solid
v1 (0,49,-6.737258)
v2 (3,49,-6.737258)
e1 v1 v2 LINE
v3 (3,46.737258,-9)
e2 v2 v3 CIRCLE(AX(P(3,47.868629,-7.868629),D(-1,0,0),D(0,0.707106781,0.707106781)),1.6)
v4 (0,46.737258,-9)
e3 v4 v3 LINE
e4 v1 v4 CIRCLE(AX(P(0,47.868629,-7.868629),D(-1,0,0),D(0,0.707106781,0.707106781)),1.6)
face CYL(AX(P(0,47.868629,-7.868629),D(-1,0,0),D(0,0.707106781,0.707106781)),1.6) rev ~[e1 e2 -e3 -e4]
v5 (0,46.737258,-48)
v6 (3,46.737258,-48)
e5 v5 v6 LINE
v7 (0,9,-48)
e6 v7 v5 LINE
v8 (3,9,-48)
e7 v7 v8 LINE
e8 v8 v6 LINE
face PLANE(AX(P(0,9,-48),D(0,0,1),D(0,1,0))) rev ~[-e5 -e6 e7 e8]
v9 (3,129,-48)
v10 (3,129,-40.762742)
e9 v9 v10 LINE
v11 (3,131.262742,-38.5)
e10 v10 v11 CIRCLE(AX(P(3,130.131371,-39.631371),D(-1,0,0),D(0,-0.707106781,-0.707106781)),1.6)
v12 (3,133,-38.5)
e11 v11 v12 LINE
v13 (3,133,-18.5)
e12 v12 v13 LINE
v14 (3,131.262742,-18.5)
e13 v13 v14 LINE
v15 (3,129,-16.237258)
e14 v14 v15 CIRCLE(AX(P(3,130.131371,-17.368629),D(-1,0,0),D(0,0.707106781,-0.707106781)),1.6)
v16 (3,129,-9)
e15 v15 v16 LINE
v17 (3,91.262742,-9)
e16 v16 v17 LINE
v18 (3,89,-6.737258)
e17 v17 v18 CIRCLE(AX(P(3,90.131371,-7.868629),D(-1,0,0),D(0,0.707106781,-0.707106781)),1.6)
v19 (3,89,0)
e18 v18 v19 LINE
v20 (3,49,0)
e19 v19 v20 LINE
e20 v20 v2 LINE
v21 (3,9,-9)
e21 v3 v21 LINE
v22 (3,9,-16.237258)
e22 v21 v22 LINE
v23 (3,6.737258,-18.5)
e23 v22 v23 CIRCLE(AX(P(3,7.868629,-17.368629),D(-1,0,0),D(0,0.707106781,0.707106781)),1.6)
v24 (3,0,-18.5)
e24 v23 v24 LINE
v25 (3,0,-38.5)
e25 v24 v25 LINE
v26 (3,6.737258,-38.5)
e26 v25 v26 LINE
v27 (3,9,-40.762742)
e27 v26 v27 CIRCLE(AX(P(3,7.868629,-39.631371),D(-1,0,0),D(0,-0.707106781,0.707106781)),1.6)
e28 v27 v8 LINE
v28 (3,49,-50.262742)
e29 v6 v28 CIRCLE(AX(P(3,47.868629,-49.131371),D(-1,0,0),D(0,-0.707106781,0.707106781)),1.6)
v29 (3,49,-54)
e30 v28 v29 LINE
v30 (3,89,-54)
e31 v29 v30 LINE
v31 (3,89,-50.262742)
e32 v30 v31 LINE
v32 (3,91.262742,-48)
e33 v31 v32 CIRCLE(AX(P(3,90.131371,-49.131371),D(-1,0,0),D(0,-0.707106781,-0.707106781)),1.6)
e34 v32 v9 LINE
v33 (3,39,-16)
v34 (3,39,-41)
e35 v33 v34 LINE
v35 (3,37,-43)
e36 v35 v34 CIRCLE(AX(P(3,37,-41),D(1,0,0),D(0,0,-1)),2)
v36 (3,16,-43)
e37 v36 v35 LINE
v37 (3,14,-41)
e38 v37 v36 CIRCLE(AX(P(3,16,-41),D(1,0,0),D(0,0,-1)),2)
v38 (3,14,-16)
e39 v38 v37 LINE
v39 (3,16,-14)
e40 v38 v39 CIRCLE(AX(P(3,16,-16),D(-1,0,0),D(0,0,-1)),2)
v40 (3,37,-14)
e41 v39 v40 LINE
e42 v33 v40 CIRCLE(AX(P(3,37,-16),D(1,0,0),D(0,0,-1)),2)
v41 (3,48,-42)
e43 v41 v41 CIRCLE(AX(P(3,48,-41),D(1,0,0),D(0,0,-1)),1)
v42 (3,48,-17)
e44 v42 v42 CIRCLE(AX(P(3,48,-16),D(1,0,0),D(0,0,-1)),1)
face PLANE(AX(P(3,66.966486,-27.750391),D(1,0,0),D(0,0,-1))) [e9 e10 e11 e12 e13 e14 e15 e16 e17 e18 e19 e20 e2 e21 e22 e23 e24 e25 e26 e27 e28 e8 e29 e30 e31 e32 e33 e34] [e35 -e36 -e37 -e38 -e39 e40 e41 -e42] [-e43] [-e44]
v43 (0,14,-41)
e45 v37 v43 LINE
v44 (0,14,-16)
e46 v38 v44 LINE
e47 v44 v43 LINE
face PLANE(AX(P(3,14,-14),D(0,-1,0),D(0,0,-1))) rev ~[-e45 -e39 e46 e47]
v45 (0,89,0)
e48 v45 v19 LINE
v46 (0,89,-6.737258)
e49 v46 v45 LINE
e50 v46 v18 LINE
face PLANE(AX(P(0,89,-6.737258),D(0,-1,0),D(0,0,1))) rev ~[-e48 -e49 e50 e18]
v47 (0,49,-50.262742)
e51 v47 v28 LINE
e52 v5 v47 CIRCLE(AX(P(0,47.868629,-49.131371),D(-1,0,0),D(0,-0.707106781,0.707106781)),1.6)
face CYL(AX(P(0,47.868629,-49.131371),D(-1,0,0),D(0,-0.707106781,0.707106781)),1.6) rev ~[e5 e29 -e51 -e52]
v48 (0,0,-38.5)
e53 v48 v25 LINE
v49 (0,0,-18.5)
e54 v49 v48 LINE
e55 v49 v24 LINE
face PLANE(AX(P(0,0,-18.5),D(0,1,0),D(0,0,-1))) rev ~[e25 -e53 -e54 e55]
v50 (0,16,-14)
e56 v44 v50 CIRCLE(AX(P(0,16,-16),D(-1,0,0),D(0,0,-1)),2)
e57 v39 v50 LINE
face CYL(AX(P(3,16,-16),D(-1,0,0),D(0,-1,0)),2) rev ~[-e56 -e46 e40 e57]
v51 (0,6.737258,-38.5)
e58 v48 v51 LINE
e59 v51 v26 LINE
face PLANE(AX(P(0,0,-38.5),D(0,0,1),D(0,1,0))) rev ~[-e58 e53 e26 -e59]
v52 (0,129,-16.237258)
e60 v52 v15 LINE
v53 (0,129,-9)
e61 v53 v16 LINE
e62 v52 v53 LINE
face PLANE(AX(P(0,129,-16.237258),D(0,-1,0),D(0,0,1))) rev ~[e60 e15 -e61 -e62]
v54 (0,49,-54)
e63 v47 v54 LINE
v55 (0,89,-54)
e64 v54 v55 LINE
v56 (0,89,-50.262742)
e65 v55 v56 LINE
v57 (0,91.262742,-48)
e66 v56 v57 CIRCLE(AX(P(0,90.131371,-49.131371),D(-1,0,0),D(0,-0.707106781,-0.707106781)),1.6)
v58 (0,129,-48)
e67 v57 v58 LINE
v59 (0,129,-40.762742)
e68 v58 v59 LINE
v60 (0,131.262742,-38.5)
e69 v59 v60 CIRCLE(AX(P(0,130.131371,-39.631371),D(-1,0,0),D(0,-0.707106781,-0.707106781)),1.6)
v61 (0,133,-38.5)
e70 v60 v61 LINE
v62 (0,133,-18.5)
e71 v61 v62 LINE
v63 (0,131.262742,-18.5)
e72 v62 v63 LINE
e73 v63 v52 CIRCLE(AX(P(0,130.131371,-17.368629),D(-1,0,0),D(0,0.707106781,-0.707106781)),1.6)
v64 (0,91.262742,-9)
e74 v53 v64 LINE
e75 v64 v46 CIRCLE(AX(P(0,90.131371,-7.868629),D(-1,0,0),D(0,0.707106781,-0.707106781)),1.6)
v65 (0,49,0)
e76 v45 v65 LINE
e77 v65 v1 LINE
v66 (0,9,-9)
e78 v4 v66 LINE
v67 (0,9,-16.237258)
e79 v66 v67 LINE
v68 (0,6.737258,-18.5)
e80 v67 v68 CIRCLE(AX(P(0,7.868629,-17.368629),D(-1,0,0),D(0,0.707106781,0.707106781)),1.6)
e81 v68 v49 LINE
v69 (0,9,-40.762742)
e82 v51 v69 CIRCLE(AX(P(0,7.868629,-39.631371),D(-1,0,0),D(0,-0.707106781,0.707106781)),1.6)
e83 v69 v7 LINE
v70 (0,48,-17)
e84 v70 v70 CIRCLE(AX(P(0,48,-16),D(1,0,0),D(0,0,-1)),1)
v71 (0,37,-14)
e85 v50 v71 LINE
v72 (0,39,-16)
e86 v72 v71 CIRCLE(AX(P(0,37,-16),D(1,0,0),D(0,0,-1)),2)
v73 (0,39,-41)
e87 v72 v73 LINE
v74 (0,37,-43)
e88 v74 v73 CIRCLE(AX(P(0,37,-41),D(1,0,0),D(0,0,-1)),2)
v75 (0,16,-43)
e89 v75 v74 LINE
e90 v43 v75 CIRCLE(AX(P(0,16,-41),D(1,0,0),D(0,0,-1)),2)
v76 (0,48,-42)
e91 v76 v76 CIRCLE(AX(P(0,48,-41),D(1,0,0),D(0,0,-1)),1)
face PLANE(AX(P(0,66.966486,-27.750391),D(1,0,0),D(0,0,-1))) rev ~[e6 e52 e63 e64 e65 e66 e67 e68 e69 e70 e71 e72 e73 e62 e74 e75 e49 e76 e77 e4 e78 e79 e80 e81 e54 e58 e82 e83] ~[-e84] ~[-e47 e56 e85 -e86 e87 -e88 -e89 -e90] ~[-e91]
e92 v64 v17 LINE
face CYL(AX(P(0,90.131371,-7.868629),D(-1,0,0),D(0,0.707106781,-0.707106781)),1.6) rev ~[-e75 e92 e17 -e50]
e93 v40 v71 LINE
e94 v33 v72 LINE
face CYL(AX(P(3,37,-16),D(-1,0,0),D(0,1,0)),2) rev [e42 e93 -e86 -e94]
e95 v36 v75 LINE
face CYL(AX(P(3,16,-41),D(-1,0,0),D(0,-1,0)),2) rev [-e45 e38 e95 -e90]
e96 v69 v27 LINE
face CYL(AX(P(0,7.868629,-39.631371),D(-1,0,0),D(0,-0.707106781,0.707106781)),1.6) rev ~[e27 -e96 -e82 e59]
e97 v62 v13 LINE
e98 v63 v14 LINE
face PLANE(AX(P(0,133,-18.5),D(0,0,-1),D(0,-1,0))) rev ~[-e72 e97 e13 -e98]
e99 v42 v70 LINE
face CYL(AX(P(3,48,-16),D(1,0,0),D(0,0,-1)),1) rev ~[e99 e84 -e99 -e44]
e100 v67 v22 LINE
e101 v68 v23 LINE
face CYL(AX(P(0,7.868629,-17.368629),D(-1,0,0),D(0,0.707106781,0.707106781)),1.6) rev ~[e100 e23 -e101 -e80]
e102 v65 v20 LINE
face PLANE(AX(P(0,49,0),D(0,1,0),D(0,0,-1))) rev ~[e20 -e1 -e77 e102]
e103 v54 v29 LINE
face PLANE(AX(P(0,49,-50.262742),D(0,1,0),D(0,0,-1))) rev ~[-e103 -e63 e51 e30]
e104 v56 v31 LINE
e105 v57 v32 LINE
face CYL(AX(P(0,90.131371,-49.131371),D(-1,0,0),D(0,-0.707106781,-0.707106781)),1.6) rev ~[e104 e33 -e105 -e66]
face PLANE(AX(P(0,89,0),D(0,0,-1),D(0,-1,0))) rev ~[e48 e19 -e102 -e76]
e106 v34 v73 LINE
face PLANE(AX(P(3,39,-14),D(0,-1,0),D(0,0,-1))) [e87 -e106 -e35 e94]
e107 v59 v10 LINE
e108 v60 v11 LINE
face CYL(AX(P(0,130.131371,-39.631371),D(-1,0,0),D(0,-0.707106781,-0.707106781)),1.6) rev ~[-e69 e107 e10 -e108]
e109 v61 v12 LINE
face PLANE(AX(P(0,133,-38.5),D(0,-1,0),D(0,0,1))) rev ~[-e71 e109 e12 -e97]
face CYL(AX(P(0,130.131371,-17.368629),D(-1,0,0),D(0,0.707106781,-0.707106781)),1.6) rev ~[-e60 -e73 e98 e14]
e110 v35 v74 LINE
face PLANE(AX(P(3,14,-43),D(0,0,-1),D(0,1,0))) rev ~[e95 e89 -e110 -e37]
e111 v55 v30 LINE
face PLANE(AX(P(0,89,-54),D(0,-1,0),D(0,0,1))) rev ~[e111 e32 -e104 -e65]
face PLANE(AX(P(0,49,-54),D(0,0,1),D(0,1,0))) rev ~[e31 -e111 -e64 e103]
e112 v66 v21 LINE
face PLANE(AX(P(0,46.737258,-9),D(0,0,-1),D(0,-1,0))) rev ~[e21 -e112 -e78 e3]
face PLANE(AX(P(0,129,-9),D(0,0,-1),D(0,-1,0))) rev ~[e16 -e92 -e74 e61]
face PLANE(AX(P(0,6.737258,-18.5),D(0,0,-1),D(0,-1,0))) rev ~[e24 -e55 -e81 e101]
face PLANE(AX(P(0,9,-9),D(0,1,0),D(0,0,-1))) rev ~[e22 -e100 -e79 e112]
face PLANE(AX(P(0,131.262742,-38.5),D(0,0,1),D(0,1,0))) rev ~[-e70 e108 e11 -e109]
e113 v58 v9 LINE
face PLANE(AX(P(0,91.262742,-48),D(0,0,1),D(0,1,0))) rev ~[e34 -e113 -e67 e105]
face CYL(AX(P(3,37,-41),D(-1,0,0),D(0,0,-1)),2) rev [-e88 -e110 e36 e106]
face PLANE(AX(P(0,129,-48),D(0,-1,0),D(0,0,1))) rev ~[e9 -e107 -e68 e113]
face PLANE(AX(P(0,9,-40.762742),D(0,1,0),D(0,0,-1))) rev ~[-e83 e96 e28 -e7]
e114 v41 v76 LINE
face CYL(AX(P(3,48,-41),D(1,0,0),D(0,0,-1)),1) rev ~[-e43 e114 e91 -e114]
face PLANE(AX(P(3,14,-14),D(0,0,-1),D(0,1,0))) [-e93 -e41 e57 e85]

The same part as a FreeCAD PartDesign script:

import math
import FreeCAD as App
import Part
import Sketcher


def edges_at(feature, points):
    """Names of the edges that pass closest to the given points."""
    edges = feature.Shape.Edges
    near = lambda p: min(range(len(edges)), key=lambda i: edges[i].distToShape(Part.Vertex(*p))[0])
    return sorted({f"Edge{near(p) + 1}" for p in points})

doc = App.newDocument("Part")
body = doc.addObject("PartDesign::Body", "Body")

# Sketch on YZ plane
sketch1 = body.newObject("Sketcher::SketchObject", "Sketch")
sketch1.AttachmentSupport = (doc.getObject("YZ_Plane"), [""])
sketch1.MapMode = "FlatFace"
sketch1.addGeometry([
    Part.LineSegment(App.Vector(6.7, -18.5, 0), App.Vector(0, -18.5, 0)),  # 0
    Part.LineSegment(App.Vector(0, -18.5, 0), App.Vector(0, -38.5, 0)),  # 1
    Part.LineSegment(App.Vector(0, -38.5, 0), App.Vector(6.7, -38.5, 0)),  # 2
    Part.ArcOfCircle(Part.Circle(App.Vector(7.9, -39.6, 0), App.Vector(0, 0, 1), 1.6), math.radians(-45), math.radians(135)),  # 3
    Part.LineSegment(App.Vector(9, -40.8, 0), App.Vector(9, -48, 0)),  # 4
    Part.LineSegment(App.Vector(9, -48, 0), App.Vector(46.7, -48, 0)),  # 5
    Part.ArcOfCircle(Part.Circle(App.Vector(47.9, -49.1, 0), App.Vector(0, 0, 1), 1.6), math.radians(-45), math.radians(135)),  # 6
    Part.LineSegment(App.Vector(49, -50.3, 0), App.Vector(49, -54, 0)),  # 7
    Part.LineSegment(App.Vector(49, -54, 0), App.Vector(89, -54, 0)),  # 8
    Part.LineSegment(App.Vector(89, -54, 0), App.Vector(89, -50.3, 0)),  # 9
    Part.ArcOfCircle(Part.Circle(App.Vector(90.1, -49.1, 0), App.Vector(0, 0, 1), 1.6), math.radians(45), math.radians(225)),  # 10
    Part.LineSegment(App.Vector(91.3, -48, 0), App.Vector(129, -48, 0)),  # 11
    Part.LineSegment(App.Vector(129, -48, 0), App.Vector(129, -40.8, 0)),  # 12
    Part.ArcOfCircle(Part.Circle(App.Vector(130.1, -39.6, 0), App.Vector(0, 0, 1), 1.6), math.radians(45), math.radians(225)),  # 13
    Part.LineSegment(App.Vector(131.3, -38.5, 0), App.Vector(133, -38.5, 0)),  # 14
    Part.LineSegment(App.Vector(133, -38.5, 0), App.Vector(133, -18.5, 0)),  # 15
    Part.LineSegment(App.Vector(133, -18.5, 0), App.Vector(131.3, -18.5, 0)),  # 16
    Part.ArcOfCircle(Part.Circle(App.Vector(130.1, -17.4, 0), App.Vector(0, 0, 1), 1.6), math.radians(135), math.radians(315)),  # 17
    Part.LineSegment(App.Vector(129, -16.2, 0), App.Vector(129, -9, 0)),  # 18
    Part.LineSegment(App.Vector(129, -9, 0), App.Vector(91.3, -9, 0)),  # 19
    Part.ArcOfCircle(Part.Circle(App.Vector(90.1, -7.9, 0), App.Vector(0, 0, 1), 1.6), math.radians(135), math.radians(315)),  # 20
    Part.LineSegment(App.Vector(89, -6.7, 0), App.Vector(89, 0, 0)),  # 21
    Part.LineSegment(App.Vector(89, 0, 0), App.Vector(49, 0, 0)),  # 22
    Part.LineSegment(App.Vector(49, 0, 0), App.Vector(49, -6.7, 0)),  # 23
    Part.ArcOfCircle(Part.Circle(App.Vector(47.9, -7.9, 0), App.Vector(0, 0, 1), 1.6), math.radians(-135), math.radians(45)),  # 24
    Part.LineSegment(App.Vector(46.7, -9, 0), App.Vector(9, -9, 0)),  # 25
    Part.LineSegment(App.Vector(9, -9, 0), App.Vector(9, -16.2, 0)),  # 26
    Part.ArcOfCircle(Part.Circle(App.Vector(7.9, -17.4, 0), App.Vector(0, 0, 1), 1.6), math.radians(-135), math.radians(45)),  # 27
], False)
sketch1.addConstraint([
    Sketcher.Constraint("Coincident", 0, 2, 1, 1),
    Sketcher.Constraint("Coincident", 1, 2, 2, 1),
    Sketcher.Constraint("Coincident", 2, 2, 3, 2),
    Sketcher.Constraint("Coincident", 3, 1, 4, 1),
    Sketcher.Constraint("Coincident", 4, 2, 5, 1),
    Sketcher.Constraint("Coincident", 5, 2, 6, 2),
    Sketcher.Constraint("Coincident", 6, 1, 7, 1),
    Sketcher.Constraint("Coincident", 7, 2, 8, 1),
    Sketcher.Constraint("Coincident", 8, 2, 9, 1),
    Sketcher.Constraint("Coincident", 9, 2, 10, 2),
    Sketcher.Constraint("Coincident", 10, 1, 11, 1),
    Sketcher.Constraint("Coincident", 11, 2, 12, 1),
    Sketcher.Constraint("Coincident", 12, 2, 13, 2),
    Sketcher.Constraint("Coincident", 13, 1, 14, 1),
    Sketcher.Constraint("Coincident", 14, 2, 15, 1),
    Sketcher.Constraint("Coincident", 15, 2, 16, 1),
    Sketcher.Constraint("Coincident", 16, 2, 17, 2),
    Sketcher.Constraint("Coincident", 17, 1, 18, 1),
    Sketcher.Constraint("Coincident", 18, 2, 19, 1),
    Sketcher.Constraint("Coincident", 19, 2, 20, 2),
    Sketcher.Constraint("Coincident", 20, 1, 21, 1),
    Sketcher.Constraint("Coincident", 21, 2, 22, 1),
    Sketcher.Constraint("Coincident", 22, 2, 23, 1),
    Sketcher.Constraint("Coincident", 23, 2, 24, 2),
    Sketcher.Constraint("Coincident", 24, 1, 25, 1),
    Sketcher.Constraint("Coincident", 25, 2, 26, 1),
    Sketcher.Constraint("Coincident", 26, 2, 27, 2),
    Sketcher.Constraint("Coincident", 27, 1, 0, 1),
    Sketcher.Constraint("Horizontal", 0),
    Sketcher.Constraint("Vertical", 1),
    Sketcher.Constraint("Horizontal", 2),
    Sketcher.Constraint("Vertical", 4),
    Sketcher.Constraint("Horizontal", 5),
    Sketcher.Constraint("Vertical", 7),
    Sketcher.Constraint("Horizontal", 8),
    Sketcher.Constraint("Vertical", 9),
    Sketcher.Constraint("Horizontal", 11),
    Sketcher.Constraint("Vertical", 12),
    Sketcher.Constraint("Horizontal", 14),
    Sketcher.Constraint("Vertical", 15),
    Sketcher.Constraint("Horizontal", 16),
    Sketcher.Constraint("Vertical", 18),
    Sketcher.Constraint("Horizontal", 19),
    Sketcher.Constraint("Vertical", 21),
    Sketcher.Constraint("Horizontal", 22),
    Sketcher.Constraint("Vertical", 23),
    Sketcher.Constraint("Horizontal", 25),
    Sketcher.Constraint("Vertical", 26),
    Sketcher.Constraint("Equal", 3, 6),
    Sketcher.Constraint("Equal", 6, 10),
    Sketcher.Constraint("Equal", 10, 13),
    Sketcher.Constraint("Equal", 13, 17),
    Sketcher.Constraint("Equal", 17, 20),
    Sketcher.Constraint("Equal", 20, 24),
    Sketcher.Constraint("Equal", 24, 27),
    Sketcher.Constraint("PointOnObject", 0, 2, -2),
    Sketcher.Constraint("PointOnObject", 21, 2, -1),
    Sketcher.Constraint("Horizontal", 6, 3, 10, 3),
    Sketcher.Constraint("Horizontal", 3, 3, 13, 3),
    Sketcher.Constraint("Horizontal", 20, 3, 24, 3),
    Sketcher.Constraint("Horizontal", 17, 3, 27, 3),
    Sketcher.Constraint("Horizontal", 6, 1, 9, 2),
    Sketcher.Constraint("Horizontal", 5, 2, 10, 1),
    Sketcher.Constraint("Horizontal", 3, 1, 12, 2),
    Sketcher.Constraint("Horizontal", 2, 2, 13, 1),
    Sketcher.Constraint("Horizontal", 0, 2, 15, 2),
    Sketcher.Constraint("Horizontal", 20, 1, 23, 2),
    Sketcher.Constraint("Horizontal", 19, 2, 24, 1),
    Sketcher.Constraint("Horizontal", 17, 1, 26, 2),
    Sketcher.Constraint("Vertical", 13, 3, 17, 3),
    Sketcher.Constraint("Vertical", 10, 3, 20, 3),
    Sketcher.Constraint("Vertical", 6, 3, 24, 3),
    Sketcher.Constraint("Vertical", 3, 3, 27, 3),
    Sketcher.Constraint("Vertical", 13, 1, 16, 2),
    Sketcher.Constraint("Vertical", 12, 2, 17, 1),
    Sketcher.Constraint("Vertical", 10, 1, 19, 2),
    Sketcher.Constraint("Vertical", 9, 2, 20, 1),
    Sketcher.Constraint("Equal", 5, 11),
    Sketcher.Constraint("Equal", 12, 18),
    Sketcher.Constraint("Equal", 2, 21),
    Sketcher.Constraint("Radius", 3, 1.6),
    Sketcher.Constraint("DistanceX", 8, 1, 8, 2, 40.0),
    Sketcher.Constraint("DistanceY", 1, 2, 1, 1, 20.0),
    Sketcher.Constraint("DistanceX", -1, 1, 3, 1, 9.0),
    Sketcher.Constraint("DistanceY", 4, 2, -1, 1, 48.0),
    Sketcher.Constraint("DistanceX", -1, 1, 6, 1, 49.0),
    Sketcher.Constraint("DistanceY", 7, 2, -1, 1, 54.0),
    Sketcher.Constraint("DistanceX", -1, 1, 14, 2, 133.0),
    Sketcher.Constraint("DistanceY", 18, 2, -1, 1, 9.0),
    Sketcher.Constraint("DistanceX", 3, 3, 6, 3, 40.0),
    Sketcher.Constraint("DistanceX", 10, 1, 13, 1, 40.0),
    Sketcher.Constraint("DistanceX", -1, 1, 3, 3, 7.868629),
])
pad1 = body.newObject("PartDesign::Pad", "Pad")
pad1.Profile = sketch1
pad1.Length = 3

# Sketch on YZ plane
sketch2 = body.newObject("Sketcher::SketchObject", "Sketch001")
sketch2.AttachmentSupport = (doc.getObject("YZ_Plane"), [""])
sketch2.MapMode = "FlatFace"
sketch2.AttachmentOffset = App.Placement(App.Vector(0, 0, 3), App.Rotation())
sketch2.addGeometry([
    Part.LineSegment(App.Vector(39, -14, 0), App.Vector(14, -14, 0)),
    Part.LineSegment(App.Vector(14, -14, 0), App.Vector(14, -43, 0)),
    Part.LineSegment(App.Vector(14, -43, 0), App.Vector(39, -43, 0)),
    Part.LineSegment(App.Vector(39, -43, 0), App.Vector(39, -14, 0)),
], False)
sketch2.addConstraint([
    Sketcher.Constraint("Coincident", 0, 2, 1, 1),
    Sketcher.Constraint("Coincident", 1, 2, 2, 1),
    Sketcher.Constraint("Coincident", 2, 2, 3, 1),
    Sketcher.Constraint("Coincident", 3, 2, 0, 1),
    Sketcher.Constraint("Horizontal", 0),
    Sketcher.Constraint("Vertical", 1),
    Sketcher.Constraint("Horizontal", 2),
    Sketcher.Constraint("Vertical", 3),
    Sketcher.Constraint("DistanceX", 0, 2, 0, 1, 25.0),
    Sketcher.Constraint("DistanceY", 1, 2, 1, 1, 29.0),
    Sketcher.Constraint("DistanceX", -1, 1, 0, 2, 14.0),
    Sketcher.Constraint("DistanceY", 0, 2, -1, 1, 14.0),
])
pocket1 = body.newObject("PartDesign::Pocket", "Pocket")
pocket1.Profile = sketch2
pocket1.Type = "ThroughAll"
doc.recompute()

fillet = body.newObject("PartDesign::Fillet", "Fillet")
fillet.Base = (pocket1, edges_at(pocket1, [
    (1.5, 14, -14),
    (1.5, 39, -14),
    (1.5, 39, -43),
    (1.5, 14, -43),
]))
fillet.Radius = 2

# Sketch on YZ plane
sketch3 = body.newObject("Sketcher::SketchObject", "Sketch002")
sketch3.AttachmentSupport = (doc.getObject("YZ_Plane"), [""])
sketch3.MapMode = "FlatFace"
sketch3.AttachmentOffset = App.Placement(App.Vector(0, 0, 3), App.Rotation())
sketch3.addGeometry([
    Part.Circle(App.Vector(48, -16, 0), App.Vector(0, 0, 1), 1),
    Part.Circle(App.Vector(48, -41, 0), App.Vector(0, 0, 1), 1),
], False)
sketch3.addConstraint([
    Sketcher.Constraint("Equal", 0, 1),
    Sketcher.Constraint("Vertical", 0, 3, 1, 3),
    Sketcher.Constraint("Diameter", 0, 2.0),
    Sketcher.Constraint("DistanceX", -1, 1, 0, 3, 48.0),
    Sketcher.Constraint("DistanceY", 0, 3, -1, 1, 16.0),
    Sketcher.Constraint("DistanceY", 1, 3, -1, 1, 41.0),
])
pocket2 = body.newObject("PartDesign::Pocket", "Pocket001")
pocket2.Profile = sketch3
pocket2.Type = "ThroughAll"

doc.recompute()
